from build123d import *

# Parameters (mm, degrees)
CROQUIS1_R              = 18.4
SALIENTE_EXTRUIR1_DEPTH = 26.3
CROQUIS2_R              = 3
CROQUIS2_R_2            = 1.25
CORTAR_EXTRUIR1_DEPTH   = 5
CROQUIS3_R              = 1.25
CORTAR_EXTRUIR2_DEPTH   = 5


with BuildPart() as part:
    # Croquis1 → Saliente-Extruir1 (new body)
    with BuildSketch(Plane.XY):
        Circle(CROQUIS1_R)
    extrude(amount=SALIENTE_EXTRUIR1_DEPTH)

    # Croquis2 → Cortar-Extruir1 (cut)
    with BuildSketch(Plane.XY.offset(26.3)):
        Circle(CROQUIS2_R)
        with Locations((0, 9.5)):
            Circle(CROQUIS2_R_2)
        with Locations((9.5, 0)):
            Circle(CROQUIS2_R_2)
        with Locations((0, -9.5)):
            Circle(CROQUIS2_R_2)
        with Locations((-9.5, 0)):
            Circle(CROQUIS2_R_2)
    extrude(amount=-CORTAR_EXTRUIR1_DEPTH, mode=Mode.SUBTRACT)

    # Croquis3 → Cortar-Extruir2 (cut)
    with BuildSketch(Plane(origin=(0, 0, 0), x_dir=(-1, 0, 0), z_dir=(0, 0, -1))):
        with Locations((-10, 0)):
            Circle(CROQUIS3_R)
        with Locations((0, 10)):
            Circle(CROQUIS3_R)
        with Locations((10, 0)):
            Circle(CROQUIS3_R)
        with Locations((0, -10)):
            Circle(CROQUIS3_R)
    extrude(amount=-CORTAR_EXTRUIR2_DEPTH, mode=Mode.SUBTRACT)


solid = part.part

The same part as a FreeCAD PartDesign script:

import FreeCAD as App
import Part
import Sketcher
Q = App.Units.Quantity

doc = App.newDocument("Part")
body = doc.addObject("PartDesign::Body", "Body")

sketch1 = body.newObject("Sketcher::SketchObject", "Sketch")
sketch1.AttachmentSupport = (doc.getObject("XY_Plane"), [""])
sketch1.MapMode = "FlatFace"
sketch1.addGeometry(Part.Circle(App.Vector(0, 0, 0), App.Vector(0, 0, 1), 18), False)
sketch1.addConstraint([
    Sketcher.Constraint("Coincident", 0, 3, -1, 1),
    Sketcher.Constraint("Diameter", 0, Q("36.8 mm")),
])
pad1 = body.newObject("PartDesign::Pad", "Pad")
pad1.Profile = sketch1
pad1.Length = 26.3

sketch2 = body.newObject("Sketcher::SketchObject", "Sketch001")
sketch2.AttachmentSupport = (doc.getObject("XY_Plane"), [""])
sketch2.MapMode = "FlatFace"
sketch2.AttachmentOffset = App.Placement(App.Vector(0, 0, 26.3), App.Rotation())
sketch2.addGeometry([
    Part.Circle(App.Vector(0, 0, 0), App.Vector(0, 0, 1), 3),
    Part.Circle(App.Vector(0, 9.5, 0), App.Vector(0, 0, 1), 1.2),
    Part.Circle(App.Vector(9.5, 0, 0), App.Vector(0, 0, 1), 1.2),
    Part.Circle(App.Vector(0, -9.5, 0), App.Vector(0, 0, 1), 1.2),
    Part.Circle(App.Vector(-9.5, 0, 0), App.Vector(0, 0, 1), 1.2),
], False)
sketch2.addConstraint([
    Sketcher.Constraint("Coincident", 0, 3, -1, 1),
    Sketcher.Constraint("Equal", 1, 2),
    Sketcher.Constraint("Equal", 2, 3),
    Sketcher.Constraint("Equal", 3, 4),
    Sketcher.Constraint("Symmetric", 1, 3, 3, 3, -1, 1),
    Sketcher.Constraint("Symmetric", 2, 3, 4, 3, -1, 1),
    Sketcher.Constraint("PointOnObject", 1, 3, -2),
    Sketcher.Constraint("PointOnObject", 2, 3, -1),
    Sketcher.Constraint("Diameter", 0, Q("6 mm")),
    Sketcher.Constraint("Diameter", 1, Q("2.5 mm")),
    Sketcher.Constraint("DistanceY", 3, 3, 1, 3, Q("19 mm")),
    Sketcher.Constraint("DistanceX", 4, 3, 2, 3, Q("19 mm")),
])
pocket1 = body.newObject("PartDesign::Pocket", "Pocket")
pocket1.Profile = sketch2
pocket1.Length = 5

sketch3 = body.newObject("Sketcher::SketchObject", "Sketch002")
sketch3.AttachmentSupport = (doc.getObject("XY_Plane"), [""])
sketch3.MapMode = "FlatFace"
sketch3.addGeometry([
    Part.Circle(App.Vector(10, 0, 0), App.Vector(0, 0, 1), 1.2),
    Part.Circle(App.Vector(0, 10, 0), App.Vector(0, 0, 1), 1.2),
    Part.Circle(App.Vector(-10, 0, 0), App.Vector(0, 0, 1), 1.2),
    Part.Circle(App.Vector(0, -10, 0), App.Vector(0, 0, 1), 1.2),
], False)
sketch3.addConstraint([
    Sketcher.Constraint("Equal", 0, 1),
    Sketcher.Constraint("Equal", 1, 2),
    Sketcher.Constraint("Equal", 2, 3),
    Sketcher.Constraint("Symmetric", 0, 3, 2, 3, -1, 1),
    Sketcher.Constraint("Symmetric", 1, 3, 3, 3, -1, 1),
    Sketcher.Constraint("PointOnObject", 0, 3, -1),
    Sketcher.Constraint("PointOnObject", 1, 3, -2),
    Sketcher.Constraint("Diameter", 0, Q("2.5 mm")),
    Sketcher.Constraint("DistanceX", -1, 1, 0, 3, Q("10 mm")),
    Sketcher.Constraint("DistanceY", -1, 1, 1, 3, Q("10 mm")),
])
pocket2 = body.newObject("PartDesign::Pocket", "Pocket001")
pocket2.Profile = sketch3
pocket2.Length = 5
pocket2.Reversed = True

doc.recompute()
